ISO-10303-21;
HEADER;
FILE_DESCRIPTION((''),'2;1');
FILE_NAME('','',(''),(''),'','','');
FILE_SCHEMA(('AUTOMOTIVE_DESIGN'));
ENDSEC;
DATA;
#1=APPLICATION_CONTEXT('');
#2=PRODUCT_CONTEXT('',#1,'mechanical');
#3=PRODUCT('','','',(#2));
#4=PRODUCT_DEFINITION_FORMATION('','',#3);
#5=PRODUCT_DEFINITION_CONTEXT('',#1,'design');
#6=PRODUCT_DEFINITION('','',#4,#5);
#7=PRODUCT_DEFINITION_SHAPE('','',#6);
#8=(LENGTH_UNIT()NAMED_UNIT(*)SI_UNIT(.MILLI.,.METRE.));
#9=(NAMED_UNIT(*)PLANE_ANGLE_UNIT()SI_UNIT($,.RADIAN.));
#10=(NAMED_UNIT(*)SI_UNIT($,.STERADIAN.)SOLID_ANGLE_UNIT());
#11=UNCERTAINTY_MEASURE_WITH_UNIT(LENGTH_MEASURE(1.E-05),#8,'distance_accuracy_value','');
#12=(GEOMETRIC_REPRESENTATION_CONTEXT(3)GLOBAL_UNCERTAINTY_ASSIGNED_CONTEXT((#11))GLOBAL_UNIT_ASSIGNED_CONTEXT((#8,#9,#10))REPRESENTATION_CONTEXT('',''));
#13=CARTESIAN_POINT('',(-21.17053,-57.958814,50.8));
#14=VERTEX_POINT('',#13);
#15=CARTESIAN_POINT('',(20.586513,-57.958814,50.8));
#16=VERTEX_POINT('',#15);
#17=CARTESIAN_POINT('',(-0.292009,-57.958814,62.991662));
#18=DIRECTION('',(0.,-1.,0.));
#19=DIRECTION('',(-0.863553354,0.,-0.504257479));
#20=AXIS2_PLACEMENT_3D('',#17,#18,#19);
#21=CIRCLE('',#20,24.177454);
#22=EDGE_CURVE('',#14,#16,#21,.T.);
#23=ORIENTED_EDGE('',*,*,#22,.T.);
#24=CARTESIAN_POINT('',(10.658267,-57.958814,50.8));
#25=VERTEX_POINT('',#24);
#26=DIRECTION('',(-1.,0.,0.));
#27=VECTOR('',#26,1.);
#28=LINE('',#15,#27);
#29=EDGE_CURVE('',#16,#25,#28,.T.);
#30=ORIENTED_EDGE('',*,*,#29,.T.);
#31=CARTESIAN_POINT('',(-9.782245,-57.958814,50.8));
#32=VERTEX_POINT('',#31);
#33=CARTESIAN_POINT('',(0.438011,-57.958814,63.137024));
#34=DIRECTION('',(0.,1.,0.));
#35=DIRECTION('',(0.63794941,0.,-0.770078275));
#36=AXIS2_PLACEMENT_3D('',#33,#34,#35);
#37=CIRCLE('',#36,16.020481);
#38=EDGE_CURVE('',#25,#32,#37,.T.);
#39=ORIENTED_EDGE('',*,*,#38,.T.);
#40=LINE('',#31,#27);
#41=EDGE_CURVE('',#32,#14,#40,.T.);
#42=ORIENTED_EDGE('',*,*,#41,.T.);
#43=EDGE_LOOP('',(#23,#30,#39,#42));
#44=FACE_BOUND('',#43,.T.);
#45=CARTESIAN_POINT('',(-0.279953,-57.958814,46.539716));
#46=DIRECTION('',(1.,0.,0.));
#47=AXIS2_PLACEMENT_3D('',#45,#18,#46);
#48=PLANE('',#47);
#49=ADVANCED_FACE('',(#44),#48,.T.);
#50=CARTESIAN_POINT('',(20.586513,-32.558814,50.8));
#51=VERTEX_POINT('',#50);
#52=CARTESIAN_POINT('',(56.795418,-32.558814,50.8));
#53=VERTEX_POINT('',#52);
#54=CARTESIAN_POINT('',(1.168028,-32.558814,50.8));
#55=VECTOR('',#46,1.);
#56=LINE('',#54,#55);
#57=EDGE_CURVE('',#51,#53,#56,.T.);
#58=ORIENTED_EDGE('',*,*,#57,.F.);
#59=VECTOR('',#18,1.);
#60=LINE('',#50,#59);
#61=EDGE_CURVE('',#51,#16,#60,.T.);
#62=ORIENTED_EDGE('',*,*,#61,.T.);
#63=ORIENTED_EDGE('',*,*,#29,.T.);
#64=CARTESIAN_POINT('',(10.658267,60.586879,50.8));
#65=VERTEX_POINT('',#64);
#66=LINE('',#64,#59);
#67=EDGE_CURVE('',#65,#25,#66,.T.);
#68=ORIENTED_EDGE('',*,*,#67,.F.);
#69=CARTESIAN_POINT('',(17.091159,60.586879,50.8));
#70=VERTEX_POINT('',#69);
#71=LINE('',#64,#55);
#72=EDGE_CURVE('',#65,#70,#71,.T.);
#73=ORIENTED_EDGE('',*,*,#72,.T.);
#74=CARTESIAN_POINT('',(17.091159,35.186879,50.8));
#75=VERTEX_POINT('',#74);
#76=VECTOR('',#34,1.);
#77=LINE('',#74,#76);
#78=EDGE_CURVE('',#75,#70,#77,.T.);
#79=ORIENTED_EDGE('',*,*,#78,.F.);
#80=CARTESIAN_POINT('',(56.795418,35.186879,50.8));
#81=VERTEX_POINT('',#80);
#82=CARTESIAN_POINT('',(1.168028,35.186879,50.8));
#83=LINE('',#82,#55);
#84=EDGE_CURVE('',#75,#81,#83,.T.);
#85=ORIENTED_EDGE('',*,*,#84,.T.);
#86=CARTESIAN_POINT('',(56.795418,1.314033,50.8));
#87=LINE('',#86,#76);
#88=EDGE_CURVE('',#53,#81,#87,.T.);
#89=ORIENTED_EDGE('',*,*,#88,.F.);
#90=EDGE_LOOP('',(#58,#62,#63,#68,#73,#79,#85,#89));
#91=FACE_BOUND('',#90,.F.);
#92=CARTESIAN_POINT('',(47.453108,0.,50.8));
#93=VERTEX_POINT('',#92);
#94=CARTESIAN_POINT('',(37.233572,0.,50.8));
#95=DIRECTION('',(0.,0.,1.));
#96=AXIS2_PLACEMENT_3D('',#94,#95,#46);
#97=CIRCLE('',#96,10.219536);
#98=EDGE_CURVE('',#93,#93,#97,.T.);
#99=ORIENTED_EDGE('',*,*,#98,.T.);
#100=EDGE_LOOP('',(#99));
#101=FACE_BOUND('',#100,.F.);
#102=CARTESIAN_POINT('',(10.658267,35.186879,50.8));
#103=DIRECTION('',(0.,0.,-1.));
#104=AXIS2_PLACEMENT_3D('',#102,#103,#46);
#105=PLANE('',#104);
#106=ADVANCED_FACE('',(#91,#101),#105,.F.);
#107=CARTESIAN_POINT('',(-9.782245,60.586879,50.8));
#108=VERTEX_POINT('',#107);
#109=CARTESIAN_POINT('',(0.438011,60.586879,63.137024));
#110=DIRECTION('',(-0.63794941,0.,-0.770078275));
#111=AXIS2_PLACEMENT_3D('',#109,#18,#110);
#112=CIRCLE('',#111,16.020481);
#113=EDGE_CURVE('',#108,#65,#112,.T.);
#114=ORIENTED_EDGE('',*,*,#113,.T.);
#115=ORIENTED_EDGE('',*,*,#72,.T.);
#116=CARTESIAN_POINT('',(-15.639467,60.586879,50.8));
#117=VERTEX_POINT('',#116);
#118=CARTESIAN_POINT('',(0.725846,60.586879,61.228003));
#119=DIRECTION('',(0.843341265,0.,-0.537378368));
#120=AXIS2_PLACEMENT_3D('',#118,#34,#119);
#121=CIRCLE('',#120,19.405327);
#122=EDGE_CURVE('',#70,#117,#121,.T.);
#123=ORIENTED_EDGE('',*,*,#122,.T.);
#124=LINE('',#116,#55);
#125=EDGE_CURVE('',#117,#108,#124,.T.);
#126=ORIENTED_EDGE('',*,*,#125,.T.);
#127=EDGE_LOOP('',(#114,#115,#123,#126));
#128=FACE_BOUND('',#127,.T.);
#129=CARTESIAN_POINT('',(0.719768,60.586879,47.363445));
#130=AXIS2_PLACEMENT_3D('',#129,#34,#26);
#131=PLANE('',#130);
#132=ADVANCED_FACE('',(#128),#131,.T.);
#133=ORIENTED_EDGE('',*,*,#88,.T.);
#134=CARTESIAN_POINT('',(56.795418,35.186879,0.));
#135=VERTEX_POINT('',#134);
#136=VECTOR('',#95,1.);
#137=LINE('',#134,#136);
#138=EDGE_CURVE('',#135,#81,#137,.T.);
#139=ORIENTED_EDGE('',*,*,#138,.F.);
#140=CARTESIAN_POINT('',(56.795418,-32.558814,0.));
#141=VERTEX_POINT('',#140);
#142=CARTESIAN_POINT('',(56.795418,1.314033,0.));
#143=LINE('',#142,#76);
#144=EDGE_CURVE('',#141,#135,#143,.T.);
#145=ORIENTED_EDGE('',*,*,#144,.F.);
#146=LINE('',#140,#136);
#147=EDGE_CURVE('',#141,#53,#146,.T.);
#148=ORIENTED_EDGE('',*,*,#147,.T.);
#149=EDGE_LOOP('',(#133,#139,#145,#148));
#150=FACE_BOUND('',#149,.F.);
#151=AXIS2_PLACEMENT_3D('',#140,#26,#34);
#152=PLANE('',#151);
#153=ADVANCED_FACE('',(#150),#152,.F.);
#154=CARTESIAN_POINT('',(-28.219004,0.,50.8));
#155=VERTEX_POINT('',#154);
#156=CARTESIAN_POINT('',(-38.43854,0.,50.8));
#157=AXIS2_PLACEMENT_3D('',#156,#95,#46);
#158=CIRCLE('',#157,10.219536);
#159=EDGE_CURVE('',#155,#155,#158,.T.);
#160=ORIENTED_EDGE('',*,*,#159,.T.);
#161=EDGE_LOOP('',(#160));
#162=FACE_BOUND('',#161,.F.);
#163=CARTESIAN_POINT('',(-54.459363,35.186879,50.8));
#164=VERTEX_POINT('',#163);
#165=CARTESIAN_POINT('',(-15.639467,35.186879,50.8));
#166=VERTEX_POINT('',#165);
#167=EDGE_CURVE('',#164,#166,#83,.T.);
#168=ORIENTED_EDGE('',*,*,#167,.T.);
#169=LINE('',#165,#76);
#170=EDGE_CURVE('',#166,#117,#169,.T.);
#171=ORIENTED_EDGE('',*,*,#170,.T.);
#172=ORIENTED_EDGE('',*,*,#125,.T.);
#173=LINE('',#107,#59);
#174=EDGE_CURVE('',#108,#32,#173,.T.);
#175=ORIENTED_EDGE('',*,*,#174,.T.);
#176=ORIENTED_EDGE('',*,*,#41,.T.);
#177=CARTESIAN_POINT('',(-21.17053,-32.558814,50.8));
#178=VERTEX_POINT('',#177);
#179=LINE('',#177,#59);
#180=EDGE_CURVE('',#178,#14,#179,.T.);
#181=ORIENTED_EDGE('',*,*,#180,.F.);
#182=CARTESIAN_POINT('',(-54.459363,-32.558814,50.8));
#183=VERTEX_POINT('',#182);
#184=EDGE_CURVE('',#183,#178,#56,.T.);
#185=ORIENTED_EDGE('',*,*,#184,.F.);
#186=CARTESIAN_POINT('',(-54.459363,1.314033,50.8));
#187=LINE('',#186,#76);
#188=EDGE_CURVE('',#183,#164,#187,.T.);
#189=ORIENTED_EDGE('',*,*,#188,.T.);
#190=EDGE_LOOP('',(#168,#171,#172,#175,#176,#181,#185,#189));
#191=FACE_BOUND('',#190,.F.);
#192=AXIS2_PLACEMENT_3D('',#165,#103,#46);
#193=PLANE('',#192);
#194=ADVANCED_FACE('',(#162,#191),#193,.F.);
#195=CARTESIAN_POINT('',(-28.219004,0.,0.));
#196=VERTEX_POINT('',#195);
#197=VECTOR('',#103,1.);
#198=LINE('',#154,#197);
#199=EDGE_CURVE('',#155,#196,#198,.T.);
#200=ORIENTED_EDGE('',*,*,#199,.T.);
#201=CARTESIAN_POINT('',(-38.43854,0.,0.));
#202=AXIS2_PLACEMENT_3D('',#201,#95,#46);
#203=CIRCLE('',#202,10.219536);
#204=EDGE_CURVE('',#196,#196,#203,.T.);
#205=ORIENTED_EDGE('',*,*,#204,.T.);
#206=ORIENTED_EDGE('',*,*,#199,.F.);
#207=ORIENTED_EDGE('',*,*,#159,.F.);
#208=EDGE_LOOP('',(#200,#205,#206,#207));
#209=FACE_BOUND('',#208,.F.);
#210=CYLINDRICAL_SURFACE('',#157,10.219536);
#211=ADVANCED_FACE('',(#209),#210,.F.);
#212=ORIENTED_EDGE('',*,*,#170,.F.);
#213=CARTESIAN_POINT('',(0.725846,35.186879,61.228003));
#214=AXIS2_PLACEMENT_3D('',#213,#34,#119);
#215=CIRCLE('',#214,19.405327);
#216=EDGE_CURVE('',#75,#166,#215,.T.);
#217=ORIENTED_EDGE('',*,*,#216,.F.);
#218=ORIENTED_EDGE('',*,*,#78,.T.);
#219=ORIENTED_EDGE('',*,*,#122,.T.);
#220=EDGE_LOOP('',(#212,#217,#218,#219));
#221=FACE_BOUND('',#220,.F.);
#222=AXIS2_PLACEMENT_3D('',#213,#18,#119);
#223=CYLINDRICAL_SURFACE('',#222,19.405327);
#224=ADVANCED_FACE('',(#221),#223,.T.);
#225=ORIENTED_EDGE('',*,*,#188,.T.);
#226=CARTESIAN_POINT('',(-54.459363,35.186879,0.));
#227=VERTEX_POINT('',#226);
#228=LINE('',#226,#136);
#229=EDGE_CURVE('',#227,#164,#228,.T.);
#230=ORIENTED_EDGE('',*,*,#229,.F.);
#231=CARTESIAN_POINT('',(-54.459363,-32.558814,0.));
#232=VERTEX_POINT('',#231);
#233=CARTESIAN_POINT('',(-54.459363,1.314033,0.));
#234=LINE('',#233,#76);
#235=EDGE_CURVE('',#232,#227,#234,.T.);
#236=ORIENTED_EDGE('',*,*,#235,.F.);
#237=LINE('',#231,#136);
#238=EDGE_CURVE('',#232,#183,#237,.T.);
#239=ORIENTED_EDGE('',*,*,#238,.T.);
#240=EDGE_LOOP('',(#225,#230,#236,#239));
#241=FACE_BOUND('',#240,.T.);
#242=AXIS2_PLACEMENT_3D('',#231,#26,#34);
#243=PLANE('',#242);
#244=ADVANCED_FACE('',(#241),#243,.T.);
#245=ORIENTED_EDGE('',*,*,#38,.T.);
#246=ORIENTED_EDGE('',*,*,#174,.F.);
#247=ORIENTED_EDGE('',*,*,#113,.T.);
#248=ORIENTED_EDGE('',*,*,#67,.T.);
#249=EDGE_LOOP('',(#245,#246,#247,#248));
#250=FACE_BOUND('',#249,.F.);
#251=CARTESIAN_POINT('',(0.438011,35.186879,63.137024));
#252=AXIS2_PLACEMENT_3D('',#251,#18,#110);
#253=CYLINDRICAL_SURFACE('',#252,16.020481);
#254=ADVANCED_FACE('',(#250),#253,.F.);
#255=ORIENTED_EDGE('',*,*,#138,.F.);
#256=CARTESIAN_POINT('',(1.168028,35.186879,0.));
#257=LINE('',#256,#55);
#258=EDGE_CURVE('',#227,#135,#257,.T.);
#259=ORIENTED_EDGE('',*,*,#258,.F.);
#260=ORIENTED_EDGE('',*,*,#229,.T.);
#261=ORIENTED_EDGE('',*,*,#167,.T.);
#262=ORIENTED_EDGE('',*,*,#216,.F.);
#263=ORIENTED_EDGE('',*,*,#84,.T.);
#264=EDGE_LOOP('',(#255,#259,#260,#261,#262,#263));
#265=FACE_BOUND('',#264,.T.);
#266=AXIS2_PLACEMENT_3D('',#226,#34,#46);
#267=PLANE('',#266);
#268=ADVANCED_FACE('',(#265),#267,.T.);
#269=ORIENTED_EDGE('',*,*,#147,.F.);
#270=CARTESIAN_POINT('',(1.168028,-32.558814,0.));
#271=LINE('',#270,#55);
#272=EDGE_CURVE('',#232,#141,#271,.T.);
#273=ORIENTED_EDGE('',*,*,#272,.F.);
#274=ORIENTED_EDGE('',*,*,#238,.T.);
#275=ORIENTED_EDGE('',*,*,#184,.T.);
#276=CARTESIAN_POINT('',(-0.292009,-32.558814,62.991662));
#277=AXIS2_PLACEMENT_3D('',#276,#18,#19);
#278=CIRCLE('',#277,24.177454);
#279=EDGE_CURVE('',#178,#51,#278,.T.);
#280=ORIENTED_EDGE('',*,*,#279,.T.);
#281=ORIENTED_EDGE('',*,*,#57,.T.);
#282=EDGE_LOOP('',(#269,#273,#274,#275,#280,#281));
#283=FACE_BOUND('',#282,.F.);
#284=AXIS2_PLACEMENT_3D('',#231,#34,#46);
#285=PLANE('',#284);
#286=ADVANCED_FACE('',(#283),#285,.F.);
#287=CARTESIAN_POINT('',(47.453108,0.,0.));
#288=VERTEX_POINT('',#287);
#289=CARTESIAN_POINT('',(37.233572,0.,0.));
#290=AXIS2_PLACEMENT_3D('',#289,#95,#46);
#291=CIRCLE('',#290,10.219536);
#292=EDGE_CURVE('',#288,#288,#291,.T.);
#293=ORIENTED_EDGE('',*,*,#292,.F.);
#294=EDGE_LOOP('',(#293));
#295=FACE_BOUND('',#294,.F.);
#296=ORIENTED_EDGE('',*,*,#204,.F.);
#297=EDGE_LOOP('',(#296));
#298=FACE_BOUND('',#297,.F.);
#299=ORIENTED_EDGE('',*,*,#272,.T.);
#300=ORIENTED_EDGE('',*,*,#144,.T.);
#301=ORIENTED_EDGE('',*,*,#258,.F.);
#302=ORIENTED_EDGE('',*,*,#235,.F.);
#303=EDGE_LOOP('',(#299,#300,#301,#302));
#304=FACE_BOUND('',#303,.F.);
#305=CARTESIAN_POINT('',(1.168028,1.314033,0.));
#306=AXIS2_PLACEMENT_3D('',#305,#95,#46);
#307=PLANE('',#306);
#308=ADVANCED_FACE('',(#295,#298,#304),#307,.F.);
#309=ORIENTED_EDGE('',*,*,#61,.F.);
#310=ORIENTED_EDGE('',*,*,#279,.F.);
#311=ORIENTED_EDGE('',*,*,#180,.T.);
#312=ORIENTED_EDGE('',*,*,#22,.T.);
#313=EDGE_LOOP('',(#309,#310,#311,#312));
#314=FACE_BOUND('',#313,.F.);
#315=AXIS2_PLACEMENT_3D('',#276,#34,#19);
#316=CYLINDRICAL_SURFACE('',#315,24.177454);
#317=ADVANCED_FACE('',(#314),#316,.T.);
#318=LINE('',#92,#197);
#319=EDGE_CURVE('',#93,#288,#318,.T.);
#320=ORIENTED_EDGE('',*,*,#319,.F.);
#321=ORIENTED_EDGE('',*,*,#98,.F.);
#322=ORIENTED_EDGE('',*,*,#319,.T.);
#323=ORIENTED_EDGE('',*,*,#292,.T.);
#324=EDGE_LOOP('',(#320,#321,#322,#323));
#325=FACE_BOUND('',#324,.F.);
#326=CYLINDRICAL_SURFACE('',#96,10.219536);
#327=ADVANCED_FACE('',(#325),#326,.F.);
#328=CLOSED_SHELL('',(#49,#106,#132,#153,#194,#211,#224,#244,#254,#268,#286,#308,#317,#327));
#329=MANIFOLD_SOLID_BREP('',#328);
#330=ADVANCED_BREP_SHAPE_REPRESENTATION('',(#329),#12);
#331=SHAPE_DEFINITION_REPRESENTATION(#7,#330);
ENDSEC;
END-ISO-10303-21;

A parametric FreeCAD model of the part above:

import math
import FreeCAD as App
import Part
import Sketcher

V = App.Vector
Q = App.Units.Quantity


def add_polygon(sketch, points):
    """Adds a closed chain of lines whose ends are joined by coincident constraints."""
    first, n = sketch.GeometryCount, len(points)
    for a, b in zip(points, points[1:] + points[:1]):
        sketch.addGeometry(Part.LineSegment(App.Vector(*a, 0), App.Vector(*b, 0)), False)
    for i in range(n):
        sketch.addConstraint(Sketcher.Constraint("Coincident", first + i, 2, first + (i + 1) % n, 1))

doc = App.newDocument("Part")
body = doc.addObject("PartDesign::Body", "Body")

# Sketch on XY plane
sketch1 = body.newObject("Sketcher::SketchObject", "Sketch")
sketch1.AttachmentSupport = (doc.getObject("XY_Plane"), [""])
sketch1.MapMode = "FlatFace"
add_polygon(sketch1, [(-54.459363, 35.186879), (-54.459363, -32.558814), (56.795418, -32.558814), (56.795418, 35.186879)])  # lines 0-3
sketch1.addConstraint([
    Sketcher.Constraint("Vertical", 0),
    Sketcher.Constraint("Horizontal", 1),
    Sketcher.Constraint("Vertical", 2),
    Sketcher.Constraint("Horizontal", 3),
    Sketcher.Constraint("DistanceX", 1, 1, 1, 2, Q("111.254781 mm")),
    Sketcher.Constraint("DistanceY", 0, 2, 0, 1, Q("67.745693 mm")),
    Sketcher.Constraint("DistanceX", -1, 1, 1, 2, Q("56.795418 mm")),
    Sketcher.Constraint("DistanceY", -1, 1, 2, 2, Q("35.186879 mm")),
])
pad1 = body.newObject("PartDesign::Pad", "Pad")
pad1.Profile = sketch1
pad1.Length = Q("2 in")

# Sketch on XZ plane
sketch2 = body.newObject("Sketcher::SketchObject", "Sketch001")
sketch2.AttachmentSupport = (doc.getObject("XZ_Plane"), [""])
sketch2.MapMode = "FlatFace"
sketch2.AttachmentOffset = App.Placement(V(0, 0, 32.558814), App.Rotation())
sketch2.addGeometry([
    Part.LineSegment(V(10.658267, 50.8, 0), V(-9.782245, 50.8, 0)),
    Part.ArcOfCircle(Part.Circle(V(0.438011, 63.137024, 0), V(0, 0, 1), 16.020481), math.radians(-129.639082), math.radians(-50.360918)),
], False)
sketch2.addConstraint([
    Sketcher.Constraint("Coincident", 0, 1, 1, 2),
    Sketcher.Constraint("Coincident", 1, 1, 0, 2),
    Sketcher.Constraint("Horizontal", 0),
    Sketcher.Constraint("DistanceY", -1, 1, 0, 1, Q("2 in")),
    Sketcher.Constraint("Radius", 1, Q("16.020481 mm")),
    Sketcher.Constraint("DistanceX", 0, 2, 0, 1, Q("20.440512 mm")),
    Sketcher.Constraint("DistanceX", -1, 1, 1, 3, Q("0.438011 mm")),
])
pocket1 = body.newObject("PartDesign::Pocket", "Pocket")
pocket1.Profile = sketch2
pocket1.Length = Q("5 in")

# Sketch on XZ plane
sketch3 = body.newObject("Sketcher::SketchObject", "Sketch002")
sketch3.AttachmentSupport = (doc.getObject("XZ_Plane"), [""])
sketch3.MapMode = "FlatFace"
sketch3.AttachmentOffset = App.Placement(V(0, 0, 32.558814), App.Rotation())
sketch3.addGeometry([
    Part.ArcOfCircle(Part.Circle(V(0.438011, 63.137024, 0), V(0, 0, 1), 16.020481), math.radians(-129.639082), math.radians(-50.360918)),
    Part.LineSegment(V(-9.782245, 50.8, 0), V(-21.17053, 50.8, 0)),
    Part.ArcOfCircle(Part.Circle(V(-0.292009, 62.991662, 0), V(0, 0, 1), 24.177454), math.radians(-149.717925), math.radians(-30.282075)),
    Part.LineSegment(V(20.586513, 50.8, 0), V(10.658267, 50.8, 0)),
], False)
sketch3.addConstraint([
    Sketcher.Constraint("Coincident", 0, 1, 1, 1),
    Sketcher.Constraint("Coincident", 1, 2, 2, 1),
    Sketcher.Constraint("Coincident", 2, 2, 3, 1),
    Sketcher.Constraint("Coincident", 3, 2, 0, 2),
    Sketcher.Constraint("Horizontal", 1),
    Sketcher.Constraint("Horizontal", 3),
    Sketcher.Constraint("Horizontal", 1, 2, 2, 2),
    Sketcher.Constraint("DistanceY", -1, 1, 0, 1, Q("2 in")),
    Sketcher.Constraint("Radius", 0, Q("16.020481 mm")),
    Sketcher.Constraint("Radius", 2, Q("24.177454 mm")),
    Sketcher.Constraint("DistanceX", 1, 2, 1, 1, Q("11.388285 mm")),
    Sketcher.Constraint("DistanceX", 3, 2, 3, 1, Q("9.928246 mm")),
    Sketcher.Constraint("DistanceX", -1, 1, 0, 3, Q("0.438011 mm")),
    Sketcher.Constraint("DistanceX", 1, 2, -1, 1, Q("21.17053 mm")),
])
pad2 = body.newObject("PartDesign::Pad", "Pad001")
pad2.Profile = sketch3
pad2.Length = Q("1 in")

# Sketch on XZ plane
sketch4 = body.newObject("Sketcher::SketchObject", "Sketch003")
sketch4.AttachmentSupport = (doc.getObject("XZ_Plane"), [""])
sketch4.MapMode = "FlatFace"
sketch4.AttachmentOffset = App.Placement(V(0, 0, -35.186879), App.Rotation())
sketch4.addGeometry([
    Part.LineSegment(V(10.658267, 50.8, 0), V(17.091159, 50.8, 0)),
    Part.ArcOfCircle(Part.Circle(V(0.725846, 61.228003, 0), V(0, 0, 1), 19.405327), math.radians(-147.494649), math.radians(-32.505351)),
    Part.LineSegment(V(-15.639467, 50.8, 0), V(-9.782245, 50.8, 0)),
    Part.ArcOfCircle(Part.Circle(V(0.438011, 63.137024, 0), V(0, 0, 1), 16.020481), math.radians(-129.639082), math.radians(-50.360918)),
], False)
sketch4.addConstraint([
    Sketcher.Constraint("Coincident", 0, 2, 1, 2),
    Sketcher.Constraint("Coincident", 1, 1, 2, 1),
    Sketcher.Constraint("Coincident", 2, 2, 3, 1),
    Sketcher.Constraint("Coincident", 3, 2, 0, 1),
    Sketcher.Constraint("Horizontal", 0),
    Sketcher.Constraint("Horizontal", 2),
    Sketcher.Constraint("Horizontal", 0, 2, 1, 1),
    Sketcher.Constraint("DistanceY", -1, 1, 0, 2, Q("2 in")),
    Sketcher.Constraint("Radius", 3, Q("16.020481 mm")),
    Sketcher.Constraint("Radius", 1, Q("19.405327 mm")),
    Sketcher.Constraint("DistanceX", 0, 1, 0, 2, Q("6.432892 mm")),
    Sketcher.Constraint("DistanceX", 2, 1, 2, 2, Q("5.857222 mm")),
    Sketcher.Constraint("DistanceX", -1, 1, 3, 3, Q("0.438011 mm")),
    Sketcher.Constraint("DistanceX", -1, 1, 0, 2, Q("17.091159 mm")),
])
pad3 = body.newObject("PartDesign::Pad", "Pad002")
pad3.Profile = sketch4
pad3.Length = Q("1 in")
pad3.Reversed = True

# Sketch on XY plane
sketch5 = body.newObject("Sketcher::SketchObject", "Sketch004")
sketch5.AttachmentSupport = (doc.getObject("XY_Plane"), [""])
sketch5.MapMode = "FlatFace"
sketch5.AttachmentOffset = App.Placement(V(0, 0, 2 * 25.4), App.Rotation())
sketch5.addGeometry([
    Part.Circle(V(-38.43854, 0, 0), V(0, 0, 1), 10.219536),
    Part.Circle(V(37.233572, 0, 0), V(0, 0, 1), 10.219536),
], False)
sketch5.addConstraint([
    Sketcher.Constraint("Equal", 0, 1),
    Sketcher.Constraint("PointOnObject", 0, 3, -1),
    Sketcher.Constraint("PointOnObject", 1, 3, -1),
    Sketcher.Constraint("Diameter", 0, Q("20.439072 mm")),
    Sketcher.Constraint("DistanceX", 0, 3, -1, 1, Q("38.43854 mm")),
    Sketcher.Constraint("DistanceX", -1, 1, 1, 3, Q("37.233572 mm")),
])
pocket2 = body.newObject("PartDesign::Pocket", "Pocket001")
pocket2.Profile = sketch5
pocket2.Length = Q("5 in")

doc.recompute()
